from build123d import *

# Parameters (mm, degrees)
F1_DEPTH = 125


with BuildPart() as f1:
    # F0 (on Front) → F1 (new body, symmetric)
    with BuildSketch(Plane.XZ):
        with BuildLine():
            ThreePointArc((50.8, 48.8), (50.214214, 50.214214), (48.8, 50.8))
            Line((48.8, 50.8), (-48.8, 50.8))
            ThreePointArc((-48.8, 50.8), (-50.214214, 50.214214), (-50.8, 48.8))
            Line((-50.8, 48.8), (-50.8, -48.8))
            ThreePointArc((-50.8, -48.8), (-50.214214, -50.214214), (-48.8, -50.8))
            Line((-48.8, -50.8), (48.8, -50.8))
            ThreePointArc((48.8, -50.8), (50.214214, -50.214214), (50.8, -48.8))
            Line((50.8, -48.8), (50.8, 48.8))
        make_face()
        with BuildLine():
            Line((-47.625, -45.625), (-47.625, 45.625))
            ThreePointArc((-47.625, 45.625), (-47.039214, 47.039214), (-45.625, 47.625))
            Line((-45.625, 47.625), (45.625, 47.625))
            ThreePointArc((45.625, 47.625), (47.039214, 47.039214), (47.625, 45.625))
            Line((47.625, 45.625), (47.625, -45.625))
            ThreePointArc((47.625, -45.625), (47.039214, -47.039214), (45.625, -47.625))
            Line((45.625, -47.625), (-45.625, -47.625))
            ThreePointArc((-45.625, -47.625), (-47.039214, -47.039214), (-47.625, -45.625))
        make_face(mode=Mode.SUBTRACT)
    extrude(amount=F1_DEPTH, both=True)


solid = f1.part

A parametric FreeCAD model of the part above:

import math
import FreeCAD as App
import Part
import Sketcher

V = App.Vector

doc = App.newDocument("Part")
body = doc.addObject("PartDesign::Body", "Body")

# Sketch on XZ plane
sketch1 = body.newObject("Sketcher::SketchObject", "Sketch")
sketch1.AttachmentSupport = (doc.getObject("XZ_Plane"), [""])
sketch1.MapMode = "FlatFace"
sketch1.addGeometry(Part.ArcOfCircle(Part.Circle(V(48.8, 48.8, 0), V(0, 0, 1), 2), math.radians(0), math.radians(90)), False)
sketch1.addGeometry(Part.LineSegment(V(48.8, 50.8, 0), V(-48.8, 50.8, 0)), False)
sketch1.addGeometry(Part.ArcOfCircle(Part.Circle(V(-48.8, 48.8, 0), V(0, 0, 1), 2), math.radians(90), math.radians(180)), False)
sketch1.addGeometry(Part.LineSegment(V(-50.8, 48.8, 0), V(-50.8, -48.8, 0)), False)
sketch1.addGeometry(Part.ArcOfCircle(Part.Circle(V(-48.8, -48.8, 0), V(0, 0, 1), 2), math.radians(180), math.radians(270)), False)
sketch1.addGeometry(Part.LineSegment(V(-48.8, -50.8, 0), V(48.8, -50.8, 0)), False)
sketch1.addGeometry(Part.ArcOfCircle(Part.Circle(V(48.8, -48.8, 0), V(0, 0, 1), 2), math.radians(-90), math.radians(0)), False)
sketch1.addGeometry(Part.LineSegment(V(50.8, -48.8, 0), V(50.8, 48.8, 0)), False)
sketch1.addGeometry(Part.ArcOfCircle(Part.Circle(V(-45.6, -45.6, 0), V(0, 0, 1), 2), math.radians(180), math.radians(270)), False)
sketch1.addGeometry(Part.LineSegment(V(-47.6, -45.6, 0), V(-47.6, 45.6, 0)), False)
sketch1.addGeometry(Part.ArcOfCircle(Part.Circle(V(-45.6, 45.6, 0), V(0, 0, 1), 2), math.radians(90), math.radians(180)), False)
sketch1.addGeometry(Part.LineSegment(V(-45.6, 47.6, 0), V(45.6, 47.6, 0)), False)
sketch1.addGeometry(Part.ArcOfCircle(Part.Circle(V(45.6, 45.6, 0), V(0, 0, 1), 2), math.radians(0), math.radians(90)), False)
sketch1.addGeometry(Part.LineSegment(V(47.6, 45.6, 0), V(47.6, -45.6, 0)), False)
sketch1.addGeometry(Part.ArcOfCircle(Part.Circle(V(45.6, -45.6, 0), V(0, 0, 1), 2), math.radians(-90), math.radians(0)), False)
sketch1.addGeometry(Part.LineSegment(V(45.6, -47.6, 0), V(-45.6, -47.6, 0)), False)
sketch1.addConstraint(Sketcher.Constraint("Tangent", 0, 2, 1, 1))
sketch1.addConstraint(Sketcher.Constraint("Tangent", 1, 2, 2, 1))
sketch1.addConstraint(Sketcher.Constraint("Tangent", 2, 2, 3, 1))
sketch1.addConstraint(Sketcher.Constraint("Tangent", 3, 2, 4, 1))
sketch1.addConstraint(Sketcher.Constraint("Tangent", 4, 2, 5, 1))
sketch1.addConstraint(Sketcher.Constraint("Tangent", 5, 2, 6, 1))
sketch1.addConstraint(Sketcher.Constraint("Tangent", 6, 2, 7, 1))
sketch1.addConstraint(Sketcher.Constraint("Tangent", 7, 2, 0, 1))
sketch1.addConstraint(Sketcher.Constraint("Tangent", 8, 1, 9, 1))
sketch1.addConstraint(Sketcher.Constraint("Tangent", 9, 2, 10, 2))
sketch1.addConstraint(Sketcher.Constraint("Tangent", 10, 1, 11, 1))
sketch1.addConstraint(Sketcher.Constraint("Tangent", 11, 2, 12, 2))
sketch1.addConstraint(Sketcher.Constraint("Tangent", 12, 1, 13, 1))
sketch1.addConstraint(Sketcher.Constraint("Tangent", 13, 2, 14, 2))
sketch1.addConstraint(Sketcher.Constraint("Tangent", 14, 1, 15, 1))
sketch1.addConstraint(Sketcher.Constraint("Tangent", 15, 2, 8, 2))
sketch1.addConstraint(Sketcher.Constraint("Horizontal", 1))
sketch1.addConstraint(Sketcher.Constraint("Vertical", 3))
sketch1.addConstraint(Sketcher.Constraint("Horizontal", 5))
sketch1.addConstraint(Sketcher.Constraint("Vertical", 7))
sketch1.addConstraint(Sketcher.Constraint("Vertical", 9))
sketch1.addConstraint(Sketcher.Constraint("Horizontal", 11))
sketch1.addConstraint(Sketcher.Constraint("Vertical", 13))
sketch1.addConstraint(Sketcher.Constraint("Horizontal", 15))
sketch1.addConstraint(Sketcher.Constraint("Equal", 0, 2))
sketch1.addConstraint(Sketcher.Constraint("Equal", 2, 4))
sketch1.addConstraint(Sketcher.Constraint("Equal", 4, 6))
sketch1.addConstraint(Sketcher.Constraint("Equal", 6, 8))
sketch1.addConstraint(Sketcher.Constraint("Equal", 8, 10))
sketch1.addConstraint(Sketcher.Constraint("Equal", 10, 12))
sketch1.addConstraint(Sketcher.Constraint("Equal", 12, 14))
sketch1.addConstraint(Sketcher.Constraint("Symmetric", 0, 3, 4, 3, -1, 1))
sketch1.addConstraint(Sketcher.Constraint("Symmetric", 8, 3, 12, 3, -1, 1))
sketch1.addConstraint(Sketcher.Constraint("Equal", 5, 3))
sketch1.addConstraint(Sketcher.Constraint("Equal", 15, 9))
sketch1.addConstraint(Sketcher.Constraint("Radius", 0, 1.999999))
sketch1.addConstraint(Sketcher.Constraint("DistanceX", 1, 2, 1, 1, 97.6))
sketch1.addConstraint(Sketcher.Constraint("DistanceX", 11, 1, 11, 2, 91.25))
pad1 = body.newObject("PartDesign::Pad", "Pad")
pad1.Profile = sketch1
pad1.Length = 250
pad1.Midplane = True

doc.recompute()
